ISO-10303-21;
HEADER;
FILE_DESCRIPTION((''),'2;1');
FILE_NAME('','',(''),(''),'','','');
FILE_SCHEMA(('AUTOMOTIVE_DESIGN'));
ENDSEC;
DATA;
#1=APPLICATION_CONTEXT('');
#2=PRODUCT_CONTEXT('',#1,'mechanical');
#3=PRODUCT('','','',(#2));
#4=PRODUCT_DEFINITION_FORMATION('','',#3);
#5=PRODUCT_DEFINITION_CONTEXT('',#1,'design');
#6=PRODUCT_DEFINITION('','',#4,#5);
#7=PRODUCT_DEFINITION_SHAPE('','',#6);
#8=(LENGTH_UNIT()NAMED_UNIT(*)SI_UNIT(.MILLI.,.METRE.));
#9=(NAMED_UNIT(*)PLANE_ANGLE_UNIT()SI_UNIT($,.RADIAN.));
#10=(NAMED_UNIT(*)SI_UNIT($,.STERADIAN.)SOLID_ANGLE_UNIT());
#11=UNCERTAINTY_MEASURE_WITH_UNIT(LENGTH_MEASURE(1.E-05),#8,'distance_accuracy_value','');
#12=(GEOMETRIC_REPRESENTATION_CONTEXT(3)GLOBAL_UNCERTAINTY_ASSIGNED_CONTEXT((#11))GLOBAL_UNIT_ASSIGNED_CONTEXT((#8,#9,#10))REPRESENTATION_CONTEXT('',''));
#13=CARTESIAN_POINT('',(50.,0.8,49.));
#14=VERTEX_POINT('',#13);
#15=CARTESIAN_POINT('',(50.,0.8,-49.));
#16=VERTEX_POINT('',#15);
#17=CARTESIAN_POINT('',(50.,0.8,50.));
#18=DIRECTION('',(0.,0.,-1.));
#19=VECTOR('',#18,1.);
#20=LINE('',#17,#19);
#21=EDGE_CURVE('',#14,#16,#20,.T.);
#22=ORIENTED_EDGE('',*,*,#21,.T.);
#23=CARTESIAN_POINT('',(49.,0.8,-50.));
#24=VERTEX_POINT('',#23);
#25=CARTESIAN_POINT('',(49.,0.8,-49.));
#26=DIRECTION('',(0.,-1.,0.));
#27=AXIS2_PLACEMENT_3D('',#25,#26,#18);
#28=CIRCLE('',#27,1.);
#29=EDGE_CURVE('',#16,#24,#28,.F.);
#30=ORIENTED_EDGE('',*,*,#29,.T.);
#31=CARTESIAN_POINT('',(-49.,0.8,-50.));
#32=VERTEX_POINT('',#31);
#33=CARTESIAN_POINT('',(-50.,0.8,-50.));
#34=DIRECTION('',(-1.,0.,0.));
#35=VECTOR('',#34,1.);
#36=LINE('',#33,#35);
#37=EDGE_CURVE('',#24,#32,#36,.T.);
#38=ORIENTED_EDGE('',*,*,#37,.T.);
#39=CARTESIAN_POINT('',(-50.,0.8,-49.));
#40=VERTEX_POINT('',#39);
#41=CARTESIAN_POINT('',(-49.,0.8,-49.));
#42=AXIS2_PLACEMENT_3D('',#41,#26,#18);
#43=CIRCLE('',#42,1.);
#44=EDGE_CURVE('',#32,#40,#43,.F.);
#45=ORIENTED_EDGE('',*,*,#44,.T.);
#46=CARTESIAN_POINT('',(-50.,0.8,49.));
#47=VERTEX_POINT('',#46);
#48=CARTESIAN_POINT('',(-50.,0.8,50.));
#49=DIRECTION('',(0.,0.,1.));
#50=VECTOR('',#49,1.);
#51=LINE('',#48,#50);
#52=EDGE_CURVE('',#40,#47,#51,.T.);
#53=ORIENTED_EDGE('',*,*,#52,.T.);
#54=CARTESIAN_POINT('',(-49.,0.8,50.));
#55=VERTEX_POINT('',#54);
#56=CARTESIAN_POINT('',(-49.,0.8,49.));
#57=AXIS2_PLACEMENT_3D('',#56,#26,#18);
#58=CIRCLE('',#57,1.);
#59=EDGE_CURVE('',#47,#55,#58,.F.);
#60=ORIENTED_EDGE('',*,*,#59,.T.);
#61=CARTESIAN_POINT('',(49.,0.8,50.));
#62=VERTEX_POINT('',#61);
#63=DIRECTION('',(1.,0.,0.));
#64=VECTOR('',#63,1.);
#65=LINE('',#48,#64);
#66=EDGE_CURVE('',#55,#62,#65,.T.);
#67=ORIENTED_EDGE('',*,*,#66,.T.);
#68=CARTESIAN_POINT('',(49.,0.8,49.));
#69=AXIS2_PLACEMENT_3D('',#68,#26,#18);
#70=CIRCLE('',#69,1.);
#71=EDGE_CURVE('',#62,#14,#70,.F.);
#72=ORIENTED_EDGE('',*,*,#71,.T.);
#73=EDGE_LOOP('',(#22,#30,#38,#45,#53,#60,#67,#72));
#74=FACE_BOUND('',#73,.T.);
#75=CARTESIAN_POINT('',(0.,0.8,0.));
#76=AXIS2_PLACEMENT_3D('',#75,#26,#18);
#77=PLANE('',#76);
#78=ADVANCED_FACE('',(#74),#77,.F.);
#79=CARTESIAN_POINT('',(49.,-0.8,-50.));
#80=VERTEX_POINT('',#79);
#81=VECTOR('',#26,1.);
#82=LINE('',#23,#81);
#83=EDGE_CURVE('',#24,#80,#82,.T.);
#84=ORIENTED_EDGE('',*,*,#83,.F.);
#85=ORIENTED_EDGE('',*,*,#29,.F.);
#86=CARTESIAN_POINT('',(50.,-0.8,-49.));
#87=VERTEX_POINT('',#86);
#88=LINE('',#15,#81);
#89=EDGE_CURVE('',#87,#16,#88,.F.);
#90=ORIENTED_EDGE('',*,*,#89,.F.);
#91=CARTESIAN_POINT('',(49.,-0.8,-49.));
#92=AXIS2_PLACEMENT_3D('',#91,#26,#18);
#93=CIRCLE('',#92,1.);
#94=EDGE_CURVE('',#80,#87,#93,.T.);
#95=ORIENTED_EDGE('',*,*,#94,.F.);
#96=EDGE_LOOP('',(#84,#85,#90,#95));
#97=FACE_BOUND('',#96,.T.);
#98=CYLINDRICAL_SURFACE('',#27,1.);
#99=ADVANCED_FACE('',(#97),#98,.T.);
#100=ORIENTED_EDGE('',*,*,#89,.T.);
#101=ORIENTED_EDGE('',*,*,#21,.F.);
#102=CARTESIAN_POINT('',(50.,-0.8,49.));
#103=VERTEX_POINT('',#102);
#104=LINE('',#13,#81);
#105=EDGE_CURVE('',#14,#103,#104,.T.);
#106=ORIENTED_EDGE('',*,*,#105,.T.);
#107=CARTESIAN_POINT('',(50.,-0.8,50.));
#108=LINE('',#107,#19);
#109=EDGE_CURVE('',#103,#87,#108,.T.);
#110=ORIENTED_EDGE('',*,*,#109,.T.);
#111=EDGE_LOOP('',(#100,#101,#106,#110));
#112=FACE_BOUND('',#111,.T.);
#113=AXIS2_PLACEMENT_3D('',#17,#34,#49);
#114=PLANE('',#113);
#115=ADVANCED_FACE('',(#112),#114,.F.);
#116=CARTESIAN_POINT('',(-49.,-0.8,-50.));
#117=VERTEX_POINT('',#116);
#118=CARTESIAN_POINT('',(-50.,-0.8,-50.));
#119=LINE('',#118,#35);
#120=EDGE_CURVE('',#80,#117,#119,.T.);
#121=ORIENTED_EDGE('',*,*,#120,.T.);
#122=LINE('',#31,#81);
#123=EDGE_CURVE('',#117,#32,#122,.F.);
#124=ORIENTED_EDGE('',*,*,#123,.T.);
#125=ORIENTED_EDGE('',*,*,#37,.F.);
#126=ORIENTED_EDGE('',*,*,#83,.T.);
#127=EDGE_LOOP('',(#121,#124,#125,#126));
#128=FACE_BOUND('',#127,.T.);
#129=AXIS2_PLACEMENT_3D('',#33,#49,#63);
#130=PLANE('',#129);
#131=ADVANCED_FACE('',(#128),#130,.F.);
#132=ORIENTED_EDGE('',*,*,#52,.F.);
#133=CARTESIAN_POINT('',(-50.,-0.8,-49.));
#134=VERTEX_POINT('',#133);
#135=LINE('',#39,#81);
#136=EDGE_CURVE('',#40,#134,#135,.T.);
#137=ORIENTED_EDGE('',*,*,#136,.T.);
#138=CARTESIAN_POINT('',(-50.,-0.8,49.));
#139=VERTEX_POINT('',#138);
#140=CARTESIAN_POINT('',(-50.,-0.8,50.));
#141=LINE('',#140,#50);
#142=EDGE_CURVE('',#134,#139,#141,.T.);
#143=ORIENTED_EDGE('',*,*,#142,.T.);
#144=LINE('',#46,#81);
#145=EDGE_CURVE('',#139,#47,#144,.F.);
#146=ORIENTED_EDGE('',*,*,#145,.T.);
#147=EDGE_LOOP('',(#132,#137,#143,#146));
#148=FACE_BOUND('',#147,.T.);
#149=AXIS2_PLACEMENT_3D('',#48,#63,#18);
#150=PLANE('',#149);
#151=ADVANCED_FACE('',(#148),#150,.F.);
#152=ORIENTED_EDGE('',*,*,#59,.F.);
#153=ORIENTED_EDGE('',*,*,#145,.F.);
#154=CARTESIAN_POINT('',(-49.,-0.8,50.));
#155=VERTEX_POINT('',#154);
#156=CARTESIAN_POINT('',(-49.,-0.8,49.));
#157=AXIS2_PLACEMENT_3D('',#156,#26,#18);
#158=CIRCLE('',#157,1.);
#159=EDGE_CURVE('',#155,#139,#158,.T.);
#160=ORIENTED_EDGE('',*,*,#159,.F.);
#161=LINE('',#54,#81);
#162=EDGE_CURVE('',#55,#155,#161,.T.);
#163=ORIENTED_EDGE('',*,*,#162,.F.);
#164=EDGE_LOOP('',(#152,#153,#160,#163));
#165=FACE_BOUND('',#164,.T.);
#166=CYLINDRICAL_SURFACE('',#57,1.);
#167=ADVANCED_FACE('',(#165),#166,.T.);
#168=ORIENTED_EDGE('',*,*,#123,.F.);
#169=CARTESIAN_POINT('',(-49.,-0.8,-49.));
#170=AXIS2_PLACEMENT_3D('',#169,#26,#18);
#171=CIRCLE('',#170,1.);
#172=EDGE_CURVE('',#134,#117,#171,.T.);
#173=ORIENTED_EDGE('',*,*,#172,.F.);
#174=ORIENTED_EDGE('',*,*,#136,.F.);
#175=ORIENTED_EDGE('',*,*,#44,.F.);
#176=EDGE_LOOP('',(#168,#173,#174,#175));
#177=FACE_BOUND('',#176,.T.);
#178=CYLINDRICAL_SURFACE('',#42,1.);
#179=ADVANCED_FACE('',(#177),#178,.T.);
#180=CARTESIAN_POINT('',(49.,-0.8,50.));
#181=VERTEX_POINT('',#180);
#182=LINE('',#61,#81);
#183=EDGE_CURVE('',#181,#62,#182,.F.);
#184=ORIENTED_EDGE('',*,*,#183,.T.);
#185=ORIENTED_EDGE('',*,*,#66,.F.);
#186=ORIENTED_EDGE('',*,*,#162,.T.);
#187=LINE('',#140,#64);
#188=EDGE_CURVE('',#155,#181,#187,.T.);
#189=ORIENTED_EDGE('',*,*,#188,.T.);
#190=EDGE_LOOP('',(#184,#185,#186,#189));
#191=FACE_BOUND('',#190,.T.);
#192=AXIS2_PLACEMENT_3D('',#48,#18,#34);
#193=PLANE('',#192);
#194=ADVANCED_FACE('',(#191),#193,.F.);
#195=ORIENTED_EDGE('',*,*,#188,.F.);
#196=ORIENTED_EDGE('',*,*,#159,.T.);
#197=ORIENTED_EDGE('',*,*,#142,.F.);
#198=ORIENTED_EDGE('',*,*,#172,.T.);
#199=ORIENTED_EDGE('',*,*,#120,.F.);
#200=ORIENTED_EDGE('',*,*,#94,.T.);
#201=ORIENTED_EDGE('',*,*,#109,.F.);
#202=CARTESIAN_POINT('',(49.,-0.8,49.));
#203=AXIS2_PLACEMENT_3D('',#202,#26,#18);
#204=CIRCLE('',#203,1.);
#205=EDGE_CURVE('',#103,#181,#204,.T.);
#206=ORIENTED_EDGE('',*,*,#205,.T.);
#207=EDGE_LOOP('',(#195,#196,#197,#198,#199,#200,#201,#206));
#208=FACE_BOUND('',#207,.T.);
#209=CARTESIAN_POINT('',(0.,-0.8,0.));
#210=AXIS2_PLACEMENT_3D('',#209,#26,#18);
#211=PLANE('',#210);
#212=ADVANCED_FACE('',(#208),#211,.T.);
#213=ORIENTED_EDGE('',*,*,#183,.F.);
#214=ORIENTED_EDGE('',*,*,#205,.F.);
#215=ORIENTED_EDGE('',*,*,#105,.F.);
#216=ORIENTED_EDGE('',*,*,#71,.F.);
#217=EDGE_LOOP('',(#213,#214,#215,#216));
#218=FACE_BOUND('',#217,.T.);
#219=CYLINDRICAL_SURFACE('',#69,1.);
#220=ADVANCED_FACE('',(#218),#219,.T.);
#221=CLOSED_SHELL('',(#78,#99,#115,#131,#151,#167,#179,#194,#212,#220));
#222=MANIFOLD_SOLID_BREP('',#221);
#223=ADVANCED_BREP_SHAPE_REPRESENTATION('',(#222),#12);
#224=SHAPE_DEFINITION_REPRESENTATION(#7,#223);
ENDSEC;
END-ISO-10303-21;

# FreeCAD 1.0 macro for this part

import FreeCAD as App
import Part
import Sketcher
from FreeCAD import Vector


def edges_at(feature, points):
    """Names of the edges that pass closest to the given points."""
    edges = feature.Shape.Edges
    near = lambda p: min(range(len(edges)), key=lambda i: edges[i].distToShape(Part.Vertex(*p))[0])
    return sorted({f"Edge{near(p) + 1}" for p in points})


def add_polygon(sketch, points):
    """Adds a closed chain of lines whose ends are joined by coincident constraints."""
    first, n = sketch.GeometryCount, len(points)
    for a, b in zip(points, points[1:] + points[:1]):
        sketch.addGeometry(Part.LineSegment(App.Vector(*a, 0), App.Vector(*b, 0)), False)
    for i in range(n):
        sketch.addConstraint(Sketcher.Constraint("Coincident", first + i, 2, first + (i + 1) % n, 1))

doc = App.newDocument("Part")
body = doc.addObject("PartDesign::Body", "Body")

sketch1 = body.newObject("Sketcher::SketchObject", "Sketch")
sketch1.AttachmentSupport = (doc.getObject("XZ_Plane"), [""])
sketch1.MapMode = "FlatFace"
add_polygon(sketch1, [(-50, -50), (-50, 50), (50, 50), (50, -50)])
sketch1.addConstraint(Sketcher.Constraint("Vertical", 0))
sketch1.addConstraint(Sketcher.Constraint("Horizontal", 1))
sketch1.addConstraint(Sketcher.Constraint("Vertical", 2))
sketch1.addConstraint(Sketcher.Constraint("Horizontal", 3))
sketch1.addConstraint(Sketcher.Constraint("Symmetric", 0, 2, 2, 2, -1, 1))
sketch1.addConstraint(Sketcher.Constraint("Equal", 3, 0))
sketch1.addConstraint(Sketcher.Constraint("DistanceX", 1, 1, 1, 2, 100.0))
pad1 = body.newObject("PartDesign::Pad", "Pad")
pad1.Profile = sketch1
pad1.Length = 1.6
pad1.Midplane = True
doc.recompute()

fillet = body.newObject("PartDesign::Fillet", "Fillet")
fillet.Base = (pad1, edges_at(pad1, [
    (50, 0, 50),
    (-50, 0, 50),
    (-50, 0, -50),
    (50, 0, -50),
]))
fillet.Radius = 1

doc.recompute()
